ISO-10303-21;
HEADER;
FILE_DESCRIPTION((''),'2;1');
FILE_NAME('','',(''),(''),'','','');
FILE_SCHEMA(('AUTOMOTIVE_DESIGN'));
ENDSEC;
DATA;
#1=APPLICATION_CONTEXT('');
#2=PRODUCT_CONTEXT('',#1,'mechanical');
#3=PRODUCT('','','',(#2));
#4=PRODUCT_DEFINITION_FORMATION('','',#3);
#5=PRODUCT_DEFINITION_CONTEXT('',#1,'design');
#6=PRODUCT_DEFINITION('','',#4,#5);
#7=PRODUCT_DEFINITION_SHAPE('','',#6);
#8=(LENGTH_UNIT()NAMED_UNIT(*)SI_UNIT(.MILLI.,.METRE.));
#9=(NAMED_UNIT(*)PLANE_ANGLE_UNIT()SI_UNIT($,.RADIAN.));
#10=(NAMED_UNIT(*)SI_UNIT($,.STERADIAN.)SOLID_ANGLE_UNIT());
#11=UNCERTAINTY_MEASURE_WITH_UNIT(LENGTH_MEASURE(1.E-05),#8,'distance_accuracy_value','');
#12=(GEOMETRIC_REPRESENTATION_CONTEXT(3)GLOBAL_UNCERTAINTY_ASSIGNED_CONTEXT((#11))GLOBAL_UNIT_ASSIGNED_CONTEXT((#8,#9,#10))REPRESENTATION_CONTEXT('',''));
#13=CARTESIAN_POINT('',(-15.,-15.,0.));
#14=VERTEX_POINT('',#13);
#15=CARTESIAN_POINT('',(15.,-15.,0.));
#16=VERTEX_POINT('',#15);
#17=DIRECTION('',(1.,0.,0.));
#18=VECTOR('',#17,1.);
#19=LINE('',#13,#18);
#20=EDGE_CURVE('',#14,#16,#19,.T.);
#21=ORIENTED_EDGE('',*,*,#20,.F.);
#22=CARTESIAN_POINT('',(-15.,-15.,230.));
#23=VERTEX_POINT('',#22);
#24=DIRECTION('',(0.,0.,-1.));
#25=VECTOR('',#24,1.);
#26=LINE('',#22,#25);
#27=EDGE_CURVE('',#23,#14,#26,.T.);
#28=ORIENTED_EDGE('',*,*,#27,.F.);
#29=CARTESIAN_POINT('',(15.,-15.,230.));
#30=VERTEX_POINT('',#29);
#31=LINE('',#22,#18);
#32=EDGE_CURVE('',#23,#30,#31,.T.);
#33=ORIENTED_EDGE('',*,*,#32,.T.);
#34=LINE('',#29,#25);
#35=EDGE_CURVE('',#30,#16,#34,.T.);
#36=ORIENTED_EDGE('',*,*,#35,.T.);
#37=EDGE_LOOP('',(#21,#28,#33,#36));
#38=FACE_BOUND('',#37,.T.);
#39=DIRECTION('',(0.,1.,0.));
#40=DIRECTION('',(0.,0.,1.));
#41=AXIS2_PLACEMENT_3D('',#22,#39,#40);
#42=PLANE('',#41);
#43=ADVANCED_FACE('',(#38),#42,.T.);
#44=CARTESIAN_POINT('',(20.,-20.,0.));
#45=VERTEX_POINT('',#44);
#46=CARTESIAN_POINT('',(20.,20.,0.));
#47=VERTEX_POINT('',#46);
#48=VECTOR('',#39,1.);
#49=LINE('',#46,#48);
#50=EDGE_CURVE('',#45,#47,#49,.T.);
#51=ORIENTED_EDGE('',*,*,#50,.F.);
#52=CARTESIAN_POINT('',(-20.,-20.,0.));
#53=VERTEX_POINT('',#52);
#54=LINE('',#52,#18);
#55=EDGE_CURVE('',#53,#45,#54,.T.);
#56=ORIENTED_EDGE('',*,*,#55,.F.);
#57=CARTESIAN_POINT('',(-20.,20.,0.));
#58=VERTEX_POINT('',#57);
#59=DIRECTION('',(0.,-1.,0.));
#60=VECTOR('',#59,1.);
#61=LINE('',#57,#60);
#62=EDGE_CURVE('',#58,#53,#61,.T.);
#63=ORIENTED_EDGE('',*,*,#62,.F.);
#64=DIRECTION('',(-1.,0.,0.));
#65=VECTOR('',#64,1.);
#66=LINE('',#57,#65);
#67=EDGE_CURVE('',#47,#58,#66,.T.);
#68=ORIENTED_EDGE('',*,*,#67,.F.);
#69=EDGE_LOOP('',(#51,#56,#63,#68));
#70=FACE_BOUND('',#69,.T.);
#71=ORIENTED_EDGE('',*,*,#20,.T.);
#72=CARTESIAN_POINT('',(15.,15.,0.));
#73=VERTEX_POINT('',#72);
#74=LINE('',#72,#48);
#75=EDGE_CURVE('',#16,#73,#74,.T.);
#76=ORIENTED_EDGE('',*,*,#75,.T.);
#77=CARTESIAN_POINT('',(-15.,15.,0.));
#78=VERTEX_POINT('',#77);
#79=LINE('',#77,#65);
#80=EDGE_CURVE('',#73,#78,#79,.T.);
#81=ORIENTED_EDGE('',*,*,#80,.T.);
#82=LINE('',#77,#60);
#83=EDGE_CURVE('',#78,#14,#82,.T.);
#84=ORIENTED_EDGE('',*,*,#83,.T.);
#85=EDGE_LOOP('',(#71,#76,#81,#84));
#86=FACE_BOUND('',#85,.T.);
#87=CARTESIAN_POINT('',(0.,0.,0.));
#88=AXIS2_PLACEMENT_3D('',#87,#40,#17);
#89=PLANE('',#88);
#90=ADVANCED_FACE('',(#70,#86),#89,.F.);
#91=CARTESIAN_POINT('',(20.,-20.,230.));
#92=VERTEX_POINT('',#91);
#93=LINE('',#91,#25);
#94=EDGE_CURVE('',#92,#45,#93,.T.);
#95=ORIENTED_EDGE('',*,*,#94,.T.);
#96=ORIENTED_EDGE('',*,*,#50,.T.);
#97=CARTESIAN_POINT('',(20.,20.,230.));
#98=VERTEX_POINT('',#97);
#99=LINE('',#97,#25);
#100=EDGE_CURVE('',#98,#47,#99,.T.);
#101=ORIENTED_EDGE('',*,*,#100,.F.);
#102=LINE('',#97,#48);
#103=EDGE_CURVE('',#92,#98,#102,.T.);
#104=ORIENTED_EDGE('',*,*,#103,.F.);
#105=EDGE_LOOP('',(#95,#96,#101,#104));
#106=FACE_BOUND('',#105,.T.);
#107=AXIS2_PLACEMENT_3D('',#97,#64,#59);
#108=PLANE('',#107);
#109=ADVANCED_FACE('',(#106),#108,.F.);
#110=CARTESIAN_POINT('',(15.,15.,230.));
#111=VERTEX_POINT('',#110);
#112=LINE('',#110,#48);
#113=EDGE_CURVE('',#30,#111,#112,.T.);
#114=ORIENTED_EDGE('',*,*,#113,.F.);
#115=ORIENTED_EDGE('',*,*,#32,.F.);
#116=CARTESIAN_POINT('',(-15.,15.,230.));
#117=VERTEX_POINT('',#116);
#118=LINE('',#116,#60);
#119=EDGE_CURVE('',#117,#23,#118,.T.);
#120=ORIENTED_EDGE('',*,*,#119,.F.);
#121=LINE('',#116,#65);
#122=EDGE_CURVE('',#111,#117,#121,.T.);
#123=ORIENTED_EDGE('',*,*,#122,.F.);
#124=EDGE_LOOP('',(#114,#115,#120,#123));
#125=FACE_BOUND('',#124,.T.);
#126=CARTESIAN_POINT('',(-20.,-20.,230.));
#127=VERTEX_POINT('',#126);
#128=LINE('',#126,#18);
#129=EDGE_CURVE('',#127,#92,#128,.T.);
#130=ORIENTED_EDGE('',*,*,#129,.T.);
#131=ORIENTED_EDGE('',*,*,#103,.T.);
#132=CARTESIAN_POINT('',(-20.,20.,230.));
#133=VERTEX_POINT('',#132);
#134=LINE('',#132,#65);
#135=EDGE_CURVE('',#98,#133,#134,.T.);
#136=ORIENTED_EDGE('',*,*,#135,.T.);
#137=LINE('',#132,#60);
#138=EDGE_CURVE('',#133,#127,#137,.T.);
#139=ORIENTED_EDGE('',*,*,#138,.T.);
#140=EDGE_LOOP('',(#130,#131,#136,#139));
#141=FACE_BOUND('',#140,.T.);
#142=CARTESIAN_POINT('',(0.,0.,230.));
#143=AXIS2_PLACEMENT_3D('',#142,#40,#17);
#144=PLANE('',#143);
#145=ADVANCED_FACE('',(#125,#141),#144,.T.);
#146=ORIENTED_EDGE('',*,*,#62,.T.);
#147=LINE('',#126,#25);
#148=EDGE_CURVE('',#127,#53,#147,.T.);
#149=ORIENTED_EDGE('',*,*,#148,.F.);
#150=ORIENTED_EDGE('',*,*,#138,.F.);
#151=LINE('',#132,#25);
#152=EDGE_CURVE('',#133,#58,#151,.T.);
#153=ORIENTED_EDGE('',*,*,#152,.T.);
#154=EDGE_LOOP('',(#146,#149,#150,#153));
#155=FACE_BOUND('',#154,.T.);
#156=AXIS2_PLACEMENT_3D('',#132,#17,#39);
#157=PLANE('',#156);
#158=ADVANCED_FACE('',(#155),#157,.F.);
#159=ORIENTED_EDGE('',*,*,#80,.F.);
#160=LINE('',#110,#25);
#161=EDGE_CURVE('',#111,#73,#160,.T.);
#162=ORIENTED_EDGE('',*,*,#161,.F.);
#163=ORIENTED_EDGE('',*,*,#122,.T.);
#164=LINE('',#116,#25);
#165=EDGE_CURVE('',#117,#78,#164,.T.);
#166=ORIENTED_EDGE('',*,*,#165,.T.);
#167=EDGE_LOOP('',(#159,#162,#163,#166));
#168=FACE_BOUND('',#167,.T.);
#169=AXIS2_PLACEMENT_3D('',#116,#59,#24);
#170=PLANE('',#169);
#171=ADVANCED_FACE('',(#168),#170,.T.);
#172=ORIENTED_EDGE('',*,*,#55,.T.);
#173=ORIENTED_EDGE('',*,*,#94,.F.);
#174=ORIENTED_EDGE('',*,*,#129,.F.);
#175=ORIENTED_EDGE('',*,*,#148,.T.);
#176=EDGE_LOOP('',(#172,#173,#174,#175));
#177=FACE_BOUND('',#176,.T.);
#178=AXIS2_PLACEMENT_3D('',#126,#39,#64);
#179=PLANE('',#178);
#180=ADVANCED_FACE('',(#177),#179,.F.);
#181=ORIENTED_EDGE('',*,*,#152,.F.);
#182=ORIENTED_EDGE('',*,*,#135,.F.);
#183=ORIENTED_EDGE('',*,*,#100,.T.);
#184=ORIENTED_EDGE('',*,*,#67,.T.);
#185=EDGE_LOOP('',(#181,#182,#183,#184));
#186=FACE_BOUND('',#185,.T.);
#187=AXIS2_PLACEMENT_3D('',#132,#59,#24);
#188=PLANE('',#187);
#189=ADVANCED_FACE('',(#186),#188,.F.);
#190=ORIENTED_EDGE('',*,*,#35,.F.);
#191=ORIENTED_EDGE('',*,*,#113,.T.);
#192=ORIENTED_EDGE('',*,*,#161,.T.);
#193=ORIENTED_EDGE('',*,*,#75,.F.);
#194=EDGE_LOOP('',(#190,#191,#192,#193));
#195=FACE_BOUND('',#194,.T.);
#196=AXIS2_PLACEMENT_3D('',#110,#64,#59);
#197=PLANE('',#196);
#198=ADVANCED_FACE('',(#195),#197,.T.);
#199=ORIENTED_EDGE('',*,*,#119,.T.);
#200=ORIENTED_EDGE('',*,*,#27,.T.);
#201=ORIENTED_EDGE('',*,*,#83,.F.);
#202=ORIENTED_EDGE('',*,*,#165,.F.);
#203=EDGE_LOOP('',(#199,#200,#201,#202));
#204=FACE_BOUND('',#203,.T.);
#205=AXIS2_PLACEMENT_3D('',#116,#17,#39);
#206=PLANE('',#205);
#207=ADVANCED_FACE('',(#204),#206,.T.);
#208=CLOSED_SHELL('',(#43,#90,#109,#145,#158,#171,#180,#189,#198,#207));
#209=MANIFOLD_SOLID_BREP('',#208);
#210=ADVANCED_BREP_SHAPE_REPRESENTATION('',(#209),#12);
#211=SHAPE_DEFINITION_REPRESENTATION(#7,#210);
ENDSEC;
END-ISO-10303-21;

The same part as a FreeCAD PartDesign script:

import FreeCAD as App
import Part
import Sketcher
Q = App.Units.Quantity

doc = App.newDocument("Part")
params = doc.addObject("Spreadsheet::Sheet", "Params")
for row, (alias, value) in enumerate([
    ("sketch1_width", "40 mm"),
    ("sketch1_width2", "30 mm"),
    ("pad1_length", "230 mm"),
], start=1):
    params.set(f"A{row}", alias)
    params.set(f"B{row}", "=" + value)
    params.setAlias(f"B{row}", alias)

body = doc.addObject("PartDesign::Body", "Body")

sketch1 = body.newObject("Sketcher::SketchObject", "Sketch")
sketch1.AttachmentSupport = (doc.getObject("XY_Plane"), [""])
sketch1.MapMode = "FlatFace"
sketch1.addGeometry([
    Part.LineSegment(App.Vector(-20, 20, 0), App.Vector(-20, -20, 0)),
    Part.LineSegment(App.Vector(-20, -20, 0), App.Vector(20, -20, 0)),
    Part.LineSegment(App.Vector(20, -20, 0), App.Vector(20, 20, 0)),
    Part.LineSegment(App.Vector(20, 20, 0), App.Vector(-20, 20, 0)),
    Part.LineSegment(App.Vector(15, -15, 0), App.Vector(-15, -15, 0)),
    Part.LineSegment(App.Vector(-15, -15, 0), App.Vector(-15, 15, 0)),
    Part.LineSegment(App.Vector(-15, 15, 0), App.Vector(15, 15, 0)),
    Part.LineSegment(App.Vector(15, 15, 0), App.Vector(15, -15, 0)),
], False)
sketch1.addConstraint([
    Sketcher.Constraint("Coincident", 0, 2, 1, 1),
    Sketcher.Constraint("Coincident", 1, 2, 2, 1),
    Sketcher.Constraint("Coincident", 2, 2, 3, 1),
    Sketcher.Constraint("Coincident", 3, 2, 0, 1),
    Sketcher.Constraint("Coincident", 4, 2, 5, 1),
    Sketcher.Constraint("Coincident", 5, 2, 6, 1),
    Sketcher.Constraint("Coincident", 6, 2, 7, 1),
    Sketcher.Constraint("Coincident", 7, 2, 4, 1),
    Sketcher.Constraint("Vertical", 0),
    Sketcher.Constraint("Horizontal", 1),
    Sketcher.Constraint("Vertical", 2),
    Sketcher.Constraint("Horizontal", 3),
    Sketcher.Constraint("Horizontal", 4),
    Sketcher.Constraint("Vertical", 5),
    Sketcher.Constraint("Horizontal", 6),
    Sketcher.Constraint("Vertical", 7),
    Sketcher.Constraint("Symmetric", 0, 2, 2, 2, -1, 1),
    Sketcher.Constraint("Symmetric", 4, 2, 6, 2, -1, 1),
    Sketcher.Constraint("Equal", 3, 0),
    Sketcher.Constraint("Equal", 6, 5),
    Sketcher.Constraint("DistanceX", 1, 1, 1, 2, Q("40 mm")),
    Sketcher.Constraint("DistanceX", 4, 2, 4, 1, Q("30 mm")),
])
sketch1.setExpression("Constraints[20]", "Params.sketch1_width")
sketch1.setExpression("Constraints[21]", "Params.sketch1_width2")
pad1 = body.newObject("PartDesign::Pad", "Pad")
pad1.Profile = sketch1
pad1.setExpression("Length", "Params.pad1_length")

doc.recompute()
